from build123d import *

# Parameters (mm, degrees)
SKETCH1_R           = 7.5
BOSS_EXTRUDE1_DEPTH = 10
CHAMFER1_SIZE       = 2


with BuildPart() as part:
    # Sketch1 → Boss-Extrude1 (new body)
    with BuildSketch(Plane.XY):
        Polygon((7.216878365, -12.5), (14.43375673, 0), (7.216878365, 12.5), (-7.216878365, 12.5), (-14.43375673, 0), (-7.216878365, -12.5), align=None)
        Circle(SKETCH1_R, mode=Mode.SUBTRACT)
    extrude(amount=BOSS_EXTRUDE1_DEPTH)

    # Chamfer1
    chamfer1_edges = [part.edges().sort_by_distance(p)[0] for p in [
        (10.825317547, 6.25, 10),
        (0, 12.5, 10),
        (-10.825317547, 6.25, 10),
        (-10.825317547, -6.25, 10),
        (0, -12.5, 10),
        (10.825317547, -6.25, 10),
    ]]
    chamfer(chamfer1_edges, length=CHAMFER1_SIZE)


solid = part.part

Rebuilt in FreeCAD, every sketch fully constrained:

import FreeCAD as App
import Part
import Sketcher
Q = App.Units.Quantity


def edges_at(feature, points):
    """Names of the edges that pass closest to the given points."""
    edges = feature.Shape.Edges
    near = lambda p: min(range(len(edges)), key=lambda i: edges[i].distToShape(Part.Vertex(*p))[0])
    return sorted({f"Edge{near(p) + 1}" for p in points})

doc = App.newDocument("Part")
params = doc.addObject("Spreadsheet::Sheet", "Params")
for row, (alias, value) in enumerate([
    ("sketch1_diameter", "15 mm"),
    ("pad1_length", "10 mm"),
    ("chamfer_size", "2 mm"),
], start=1):
    params.set(f"A{row}", alias)
    params.set(f"B{row}", "=" + value)
    params.setAlias(f"B{row}", alias)

body = doc.addObject("PartDesign::Body", "Body")

# Sketch on XY plane
sketch1 = doc.addObject("Sketcher::SketchObject", "Sketch")
body.addObject(sketch1)
sketch1.AttachmentSupport = (doc.XY_Plane, [""])
sketch1.MapMode = "FlatFace"
sketch1.addGeometry([
    Part.LineSegment(App.Vector(7, -12, 0), App.Vector(14, 0, 0)),  # 0
    Part.LineSegment(App.Vector(14, 0, 0), App.Vector(7, 12, 0)),  # 1
    Part.LineSegment(App.Vector(7, 12, 0), App.Vector(-7, 12, 0)),  # 2
    Part.LineSegment(App.Vector(-7, 12, 0), App.Vector(-14, 0, 0)),  # 3
    Part.LineSegment(App.Vector(-14, 0, 0), App.Vector(-7, -12, 0)),  # 4
    Part.LineSegment(App.Vector(-7, -12, 0), App.Vector(7, -12, 0)),  # 5
    Part.Circle(App.Vector(0, 0, 0), App.Vector(0, 0, 1), 8),  # 6
], False)
sketch1.addConstraint([
    Sketcher.Constraint("Coincident", 0, 2, 1, 1),
    Sketcher.Constraint("Coincident", 1, 2, 2, 1),
    Sketcher.Constraint("Coincident", 2, 2, 3, 1),
    Sketcher.Constraint("Coincident", 3, 2, 4, 1),
    Sketcher.Constraint("Coincident", 4, 2, 5, 1),
    Sketcher.Constraint("Coincident", 5, 2, 0, 1),
    Sketcher.Constraint("Horizontal", 2),
    Sketcher.Constraint("Horizontal", 5),
    Sketcher.Constraint("Coincident", 6, 3, -1, 1),
    Sketcher.Constraint("Symmetric", 0, 2, 3, 2, -1, 1),
    Sketcher.Constraint("Symmetric", 1, 2, 4, 2, -1, 1),
    Sketcher.Constraint("PointOnObject", 0, 2, -1),
    Sketcher.Constraint("Parallel", 0, 3),
    Sketcher.Constraint("Vertical", 2, 2, 4, 2),
    Sketcher.Constraint("Diameter", 6, 15.0),
    Sketcher.Constraint("Angle", 0, Q("60 deg")),
    Sketcher.Constraint("DistanceY", 4, 2, 2, 2, 25.0),
    Sketcher.Constraint("DistanceX", 2, 2, 2, 1, 14.433757),
])
sketch1.setExpression("Constraints[14]", "Params.sketch1_diameter")
pad1 = doc.addObject("PartDesign::Pad", "Pad")
body.addObject(pad1)
pad1.Profile = sketch1
pad1.setExpression("Length", "Params.pad1_length")
doc.recompute()

chamfer = doc.addObject("PartDesign::Chamfer", "Chamfer")
body.addObject(chamfer)
chamfer.Base = (pad1, edges_at(pad1, [
    (10.825, 6.25, 10),
    (0, 12.5, 10),
    (-10.825, 6.25, 10),
    (-10.825, -6.25, 10),
    (0, -12.5, 10),
    (10.825, -6.25, 10),
]))
chamfer.setExpression("Size", "Params.chamfer_size")

doc.recompute()
